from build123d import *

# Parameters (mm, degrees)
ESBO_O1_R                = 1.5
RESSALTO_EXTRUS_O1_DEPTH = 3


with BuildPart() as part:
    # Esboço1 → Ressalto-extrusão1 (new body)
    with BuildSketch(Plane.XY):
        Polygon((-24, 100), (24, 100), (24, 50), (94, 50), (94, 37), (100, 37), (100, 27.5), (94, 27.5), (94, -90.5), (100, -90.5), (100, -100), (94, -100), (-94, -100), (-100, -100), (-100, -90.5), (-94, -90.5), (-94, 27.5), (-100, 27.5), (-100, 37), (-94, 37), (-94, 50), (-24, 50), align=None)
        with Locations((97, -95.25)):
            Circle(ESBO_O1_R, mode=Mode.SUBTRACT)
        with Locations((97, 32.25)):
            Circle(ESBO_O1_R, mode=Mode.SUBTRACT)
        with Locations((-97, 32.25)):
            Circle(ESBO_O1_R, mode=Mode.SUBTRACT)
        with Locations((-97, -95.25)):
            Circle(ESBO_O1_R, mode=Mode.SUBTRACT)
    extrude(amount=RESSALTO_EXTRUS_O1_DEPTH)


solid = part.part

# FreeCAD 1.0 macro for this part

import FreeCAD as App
import Part
import Sketcher
from FreeCAD import Vector


def add_polygon(sketch, points):
    """Adds a closed chain of lines whose ends are joined by coincident constraints."""
    first, n = sketch.GeometryCount, len(points)
    for a, b in zip(points, points[1:] + points[:1]):
        sketch.addGeometry(Part.LineSegment(App.Vector(*a, 0), App.Vector(*b, 0)), False)
    for i in range(n):
        sketch.addConstraint(Sketcher.Constraint("Coincident", first + i, 2, first + (i + 1) % n, 1))

doc = App.newDocument("Part")
body = doc.addObject("PartDesign::Body", "Body")

# Sketch on XY plane
sketch1 = body.newObject("Sketcher::SketchObject", "Sketch")
sketch1.AttachmentSupport = (doc.getObject("XY_Plane"), [""])
sketch1.MapMode = "FlatFace"
add_polygon(sketch1, [(24, 100), (-24, 100), (-24, 50), (-94, 50), (-94, 37), (-100, 37), (-100, 27.5), (-94, 27.5), (-94, -90.5), (-100, -90.5), (-100, -100), (100, -100), (100, -90.5), (94, -90.5), (94, 27.5), (100, 27.5), (100, 37), (94, 37), (94, 50), (24, 50)])  # lines 0-19
sketch1.addGeometry(Part.Circle(Vector(97, -95.25, 0), Vector(0, 0, 1), 1.5), False)  # 20
sketch1.addGeometry(Part.Circle(Vector(-97, -95.25, 0), Vector(0, 0, 1), 1.5), False)  # 21
sketch1.addGeometry(Part.Circle(Vector(97, 32.25, 0), Vector(0, 0, 1), 1.5), False)  # 22
sketch1.addGeometry(Part.Circle(Vector(-97, 32.25, 0), Vector(0, 0, 1), 1.5), False)  # 23
sketch1.addConstraint(Sketcher.Constraint("Horizontal", 0))
sketch1.addConstraint(Sketcher.Constraint("Vertical", 1))
sketch1.addConstraint(Sketcher.Constraint("Horizontal", 2))
sketch1.addConstraint(Sketcher.Constraint("Vertical", 3))
sketch1.addConstraint(Sketcher.Constraint("Horizontal", 4))
sketch1.addConstraint(Sketcher.Constraint("Vertical", 5))
sketch1.addConstraint(Sketcher.Constraint("Horizontal", 6))
sketch1.addConstraint(Sketcher.Constraint("Vertical", 7))
sketch1.addConstraint(Sketcher.Constraint("Horizontal", 8))
sketch1.addConstraint(Sketcher.Constraint("Vertical", 9))
sketch1.addConstraint(Sketcher.Constraint("Horizontal", 10))
sketch1.addConstraint(Sketcher.Constraint("Vertical", 11))
sketch1.addConstraint(Sketcher.Constraint("Horizontal", 12))
sketch1.addConstraint(Sketcher.Constraint("Vertical", 13))
sketch1.addConstraint(Sketcher.Constraint("Horizontal", 14))
sketch1.addConstraint(Sketcher.Constraint("Vertical", 15))
sketch1.addConstraint(Sketcher.Constraint("Horizontal", 16))
sketch1.addConstraint(Sketcher.Constraint("Vertical", 17))
sketch1.addConstraint(Sketcher.Constraint("Horizontal", 18))
sketch1.addConstraint(Sketcher.Constraint("Vertical", 19))
sketch1.addConstraint(Sketcher.Constraint("Equal", 20, 21))
sketch1.addConstraint(Sketcher.Constraint("Equal", 21, 22))
sketch1.addConstraint(Sketcher.Constraint("Equal", 22, 23))
sketch1.addConstraint(Sketcher.Constraint("Symmetric", 20, 3, 21, 3, -2))
sketch1.addConstraint(Sketcher.Constraint("Symmetric", 22, 3, 23, 3, -2))
sketch1.addConstraint(Sketcher.Constraint("Symmetric", 8, 2, 11, 2, -2))
sketch1.addConstraint(Sketcher.Constraint("Symmetric", 6, 2, 13, 2, -2))
sketch1.addConstraint(Sketcher.Constraint("Symmetric", 4, 2, 15, 2, -2))
sketch1.addConstraint(Sketcher.Constraint("Symmetric", 2, 2, 17, 2, -2))
sketch1.addConstraint(Sketcher.Constraint("Vertical", 20, 3, 22, 3))
sketch1.addConstraint(Sketcher.Constraint("Vertical", 3, 2, 6, 2))
sketch1.addConstraint(Sketcher.Constraint("Vertical", 5, 2, 8, 2))
sketch1.addConstraint(Sketcher.Constraint("Equal", 2, 18))
sketch1.addConstraint(Sketcher.Constraint("Equal", 5, 9))
sketch1.addConstraint(Sketcher.Constraint("Diameter", 20, 3.0))
sketch1.addConstraint(Sketcher.Constraint("DistanceX", 0, 2, 0, 1, 48.0))
sketch1.addConstraint(Sketcher.Constraint("DistanceX", 2, 2, 2, 1, 70.0))
sketch1.addConstraint(Sketcher.Constraint("DistanceX", 4, 2, 4, 1, 6.0))
sketch1.addConstraint(Sketcher.Constraint("DistanceY", 1, 2, 1, 1, 50.0))
sketch1.addConstraint(Sketcher.Constraint("DistanceY", 3, 2, 3, 1, 13.0))
sketch1.addConstraint(Sketcher.Constraint("DistanceY", 7, 2, 7, 1, 118.0))
sketch1.addConstraint(Sketcher.Constraint("DistanceY", 5, 2, 5, 1, 9.5))
sketch1.addConstraint(Sketcher.Constraint("DistanceX", -1, 1, 20, 3, 97.0))
sketch1.addConstraint(Sketcher.Constraint("DistanceY", -1, 1, 0, 2, 100.0))
sketch1.addConstraint(Sketcher.Constraint("DistanceY", 20, 3, 22, 3, 127.5))
sketch1.addConstraint(Sketcher.Constraint("DistanceY", 20, 3, -1, 1, 95.25))
pad1 = body.newObject("PartDesign::Pad", "Pad")
pad1.Profile = sketch1
pad1.Length = 3

doc.recompute()
